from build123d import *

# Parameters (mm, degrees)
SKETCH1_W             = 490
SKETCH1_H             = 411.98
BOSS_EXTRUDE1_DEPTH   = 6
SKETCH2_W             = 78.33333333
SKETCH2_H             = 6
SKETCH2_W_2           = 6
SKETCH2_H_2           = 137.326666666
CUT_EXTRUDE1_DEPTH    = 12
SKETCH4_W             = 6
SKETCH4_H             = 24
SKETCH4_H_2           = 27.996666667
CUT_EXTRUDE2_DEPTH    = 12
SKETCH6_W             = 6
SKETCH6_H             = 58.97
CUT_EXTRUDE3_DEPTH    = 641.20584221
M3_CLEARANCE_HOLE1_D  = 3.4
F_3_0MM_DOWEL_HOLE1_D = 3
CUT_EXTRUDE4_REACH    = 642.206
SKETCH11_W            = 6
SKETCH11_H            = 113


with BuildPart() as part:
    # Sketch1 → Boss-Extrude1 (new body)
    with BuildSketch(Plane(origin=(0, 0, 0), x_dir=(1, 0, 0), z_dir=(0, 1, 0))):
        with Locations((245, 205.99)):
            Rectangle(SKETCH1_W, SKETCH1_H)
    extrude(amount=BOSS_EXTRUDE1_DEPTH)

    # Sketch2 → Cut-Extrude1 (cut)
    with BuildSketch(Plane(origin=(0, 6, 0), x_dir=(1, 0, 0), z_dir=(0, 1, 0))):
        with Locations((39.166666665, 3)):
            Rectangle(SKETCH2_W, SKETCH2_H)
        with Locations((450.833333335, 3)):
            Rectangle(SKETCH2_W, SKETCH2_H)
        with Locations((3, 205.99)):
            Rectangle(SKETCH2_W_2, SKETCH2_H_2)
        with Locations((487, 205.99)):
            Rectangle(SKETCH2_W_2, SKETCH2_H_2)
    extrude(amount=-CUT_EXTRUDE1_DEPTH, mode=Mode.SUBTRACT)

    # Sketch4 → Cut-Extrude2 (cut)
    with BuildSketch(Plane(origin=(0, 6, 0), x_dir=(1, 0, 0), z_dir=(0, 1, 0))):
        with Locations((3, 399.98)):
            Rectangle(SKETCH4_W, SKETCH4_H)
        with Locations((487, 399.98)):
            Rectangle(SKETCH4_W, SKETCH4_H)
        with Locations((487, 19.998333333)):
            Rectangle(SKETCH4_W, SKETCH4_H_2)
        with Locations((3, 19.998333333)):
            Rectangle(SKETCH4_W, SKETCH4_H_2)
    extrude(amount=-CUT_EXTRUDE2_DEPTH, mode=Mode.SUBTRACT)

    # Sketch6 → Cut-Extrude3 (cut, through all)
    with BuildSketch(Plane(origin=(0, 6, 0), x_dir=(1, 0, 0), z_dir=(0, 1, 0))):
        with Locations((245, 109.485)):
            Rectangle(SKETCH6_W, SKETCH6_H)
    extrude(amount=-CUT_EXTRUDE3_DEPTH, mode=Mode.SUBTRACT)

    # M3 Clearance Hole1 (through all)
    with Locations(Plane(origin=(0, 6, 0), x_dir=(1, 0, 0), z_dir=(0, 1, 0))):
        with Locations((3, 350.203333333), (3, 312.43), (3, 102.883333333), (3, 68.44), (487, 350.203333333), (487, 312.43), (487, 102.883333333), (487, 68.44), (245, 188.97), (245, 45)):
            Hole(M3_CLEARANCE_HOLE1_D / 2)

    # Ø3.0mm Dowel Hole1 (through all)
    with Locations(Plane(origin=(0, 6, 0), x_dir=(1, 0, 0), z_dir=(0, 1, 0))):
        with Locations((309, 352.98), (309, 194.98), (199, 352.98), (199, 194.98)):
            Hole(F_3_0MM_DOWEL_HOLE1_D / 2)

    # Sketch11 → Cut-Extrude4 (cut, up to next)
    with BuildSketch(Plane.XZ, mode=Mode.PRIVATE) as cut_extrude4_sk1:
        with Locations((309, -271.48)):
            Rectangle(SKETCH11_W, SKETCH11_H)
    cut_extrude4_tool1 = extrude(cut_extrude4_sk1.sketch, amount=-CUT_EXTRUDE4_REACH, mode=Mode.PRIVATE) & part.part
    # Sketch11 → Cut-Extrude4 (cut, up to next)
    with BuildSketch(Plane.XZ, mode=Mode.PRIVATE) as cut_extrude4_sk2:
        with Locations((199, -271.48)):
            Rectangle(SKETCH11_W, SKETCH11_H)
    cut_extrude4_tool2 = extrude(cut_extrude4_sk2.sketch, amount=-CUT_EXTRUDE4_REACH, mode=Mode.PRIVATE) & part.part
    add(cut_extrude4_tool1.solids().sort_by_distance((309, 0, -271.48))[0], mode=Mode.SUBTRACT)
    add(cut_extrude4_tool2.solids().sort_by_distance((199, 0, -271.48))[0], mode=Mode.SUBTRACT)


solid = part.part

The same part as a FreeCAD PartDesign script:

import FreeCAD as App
import Part
import Sketcher

V = App.Vector

doc = App.newDocument("Part")
body = doc.addObject("PartDesign::Body", "Body")

sketch1 = body.newObject("Sketcher::SketchObject", "Sketch")
sketch1.AttachmentSupport = (doc.getObject("XZ_Plane"), [""])
sketch1.MapMode = "FlatFace"
sketch1.addGeometry([
    Part.LineSegment(V(0, -411.98, 0), V(0, 0, 0)),
    Part.LineSegment(V(0, 0, 0), V(490, 0, 0)),
    Part.LineSegment(V(490, 0, 0), V(490, -411.98, 0)),
    Part.LineSegment(V(490, -411.98, 0), V(0, -411.98, 0)),
], False)
sketch1.addConstraint([
    Sketcher.Constraint("Coincident", 0, 2, 1, 1),
    Sketcher.Constraint("Coincident", 1, 2, 2, 1),
    Sketcher.Constraint("Coincident", 2, 2, 3, 1),
    Sketcher.Constraint("Coincident", 3, 2, 0, 1),
    Sketcher.Constraint("Vertical", 0),
    Sketcher.Constraint("Horizontal", 1),
    Sketcher.Constraint("Vertical", 2),
    Sketcher.Constraint("Horizontal", 3),
    Sketcher.Constraint("Coincident", 0, 2, -1, 1),
    Sketcher.Constraint("DistanceX", 1, 1, 1, 2, 490.0),
    Sketcher.Constraint("DistanceY", 0, 1, 0, 2, 411.98),
])
pad1 = body.newObject("PartDesign::Pad", "Pad")
pad1.Profile = sketch1
pad1.Length = 6
pad1.Reversed = True

sketch2 = body.newObject("Sketcher::SketchObject", "Sketch001")
sketch2.AttachmentSupport = (doc.getObject("XZ_Plane"), [""])
sketch2.MapMode = "FlatFace"
sketch2.AttachmentOffset = App.Placement(V(0, 0, -6), App.Rotation())
sketch2.addGeometry([
    Part.LineSegment(V(0, -6, 0), V(0, 0, 0)),
    Part.LineSegment(V(0, 0, 0), V(78.333333, 0, 0)),
    Part.LineSegment(V(78.333333, 0, 0), V(78.333333, -6, 0)),
    Part.LineSegment(V(78.333333, -6, 0), V(0, -6, 0)),
    Part.LineSegment(V(411.666667, -6, 0), V(411.666667, 0, 0)),
    Part.LineSegment(V(411.666667, 0, 0), V(490, 0, 0)),
    Part.LineSegment(V(490, 0, 0), V(490, -6, 0)),
    Part.LineSegment(V(490, -6, 0), V(411.666667, -6, 0)),
    Part.LineSegment(V(0, -274.653333, 0), V(0, -137.326667, 0)),
    Part.LineSegment(V(0, -137.326667, 0), V(6, -137.326667, 0)),
    Part.LineSegment(V(6, -137.326667, 0), V(6, -274.653333, 0)),
    Part.LineSegment(V(6, -274.653333, 0), V(0, -274.653333, 0)),
    Part.LineSegment(V(484, -274.653333, 0), V(484, -137.326667, 0)),
    Part.LineSegment(V(484, -137.326667, 0), V(490, -137.326667, 0)),
    Part.LineSegment(V(490, -137.326667, 0), V(490, -274.653333, 0)),
    Part.LineSegment(V(490, -274.653333, 0), V(484, -274.653333, 0)),
], False)
sketch2.addConstraint([
    Sketcher.Constraint("Coincident", 0, 2, 1, 1),
    Sketcher.Constraint("Coincident", 1, 2, 2, 1),
    Sketcher.Constraint("Coincident", 2, 2, 3, 1),
    Sketcher.Constraint("Coincident", 3, 2, 0, 1),
    Sketcher.Constraint("Coincident", 4, 2, 5, 1),
    Sketcher.Constraint("Coincident", 5, 2, 6, 1),
    Sketcher.Constraint("Coincident", 6, 2, 7, 1),
    Sketcher.Constraint("Coincident", 7, 2, 4, 1),
    Sketcher.Constraint("Coincident", 8, 2, 9, 1),
    Sketcher.Constraint("Coincident", 9, 2, 10, 1),
    Sketcher.Constraint("Coincident", 10, 2, 11, 1),
    Sketcher.Constraint("Coincident", 11, 2, 8, 1),
    Sketcher.Constraint("Coincident", 12, 2, 13, 1),
    Sketcher.Constraint("Coincident", 13, 2, 14, 1),
    Sketcher.Constraint("Coincident", 14, 2, 15, 1),
    Sketcher.Constraint("Coincident", 15, 2, 12, 1),
    Sketcher.Constraint("Vertical", 0),
    Sketcher.Constraint("Horizontal", 1),
    Sketcher.Constraint("Vertical", 2),
    Sketcher.Constraint("Horizontal", 3),
    Sketcher.Constraint("Vertical", 4),
    Sketcher.Constraint("Horizontal", 5),
    Sketcher.Constraint("Vertical", 6),
    Sketcher.Constraint("Horizontal", 7),
    Sketcher.Constraint("Vertical", 8),
    Sketcher.Constraint("Horizontal", 9),
    Sketcher.Constraint("Vertical", 10),
    Sketcher.Constraint("Horizontal", 11),
    Sketcher.Constraint("Vertical", 12),
    Sketcher.Constraint("Horizontal", 13),
    Sketcher.Constraint("Vertical", 14),
    Sketcher.Constraint("Horizontal", 15),
    Sketcher.Constraint("Coincident", 0, 2, -1, 1),
    Sketcher.Constraint("PointOnObject", 4, 2, -1),
    Sketcher.Constraint("PointOnObject", 8, 2, -2),
    Sketcher.Constraint("Horizontal", 3, 2, 6, 2),
    Sketcher.Constraint("Horizontal", 9, 2, 12, 2),
    Sketcher.Constraint("Horizontal", 11, 2, 14, 2),
    Sketcher.Constraint("Vertical", 6, 2, 13, 2),
    Sketcher.Constraint("Equal", 3, 5),
    Sketcher.Constraint("Equal", 11, 13),
    Sketcher.Constraint("Equal", 15, 0),
    Sketcher.Constraint("DistanceX", 9, 1, 9, 2, 6.0),
    Sketcher.Constraint("DistanceX", -1, 1, 5, 2, 490.0),
    Sketcher.Constraint("DistanceX", 1, 1, 1, 2, 78.333333),
    Sketcher.Constraint("DistanceY", 8, 1, 8, 2, 137.326667),
    Sketcher.Constraint("DistanceY", 8, 2, -1, 1, 137.326667),
])
pocket1 = body.newObject("PartDesign::Pocket", "Pocket")
pocket1.Profile = sketch2
pocket1.Length = 12
pocket1.Reversed = True

sketch3 = body.newObject("Sketcher::SketchObject", "Sketch002")
sketch3.AttachmentSupport = (doc.getObject("XZ_Plane"), [""])
sketch3.MapMode = "FlatFace"
sketch3.AttachmentOffset = App.Placement(V(0, 0, -6), App.Rotation())
sketch3.addGeometry([
    Part.LineSegment(V(0, -411.98, 0), V(0, -387.98, 0)),
    Part.LineSegment(V(0, -387.98, 0), V(6, -387.98, 0)),
    Part.LineSegment(V(6, -387.98, 0), V(6, -411.98, 0)),
    Part.LineSegment(V(6, -411.98, 0), V(0, -411.98, 0)),
    Part.LineSegment(V(484, -411.98, 0), V(484, -387.98, 0)),
    Part.LineSegment(V(484, -387.98, 0), V(490, -387.98, 0)),
    Part.LineSegment(V(490, -387.98, 0), V(490, -411.98, 0)),
    Part.LineSegment(V(490, -411.98, 0), V(484, -411.98, 0)),
    Part.LineSegment(V(484, -33.996667, 0), V(484, -6, 0)),
    Part.LineSegment(V(484, -6, 0), V(490, -6, 0)),
    Part.LineSegment(V(490, -6, 0), V(490, -33.996667, 0)),
    Part.LineSegment(V(490, -33.996667, 0), V(484, -33.996667, 0)),
    Part.LineSegment(V(0, -33.996667, 0), V(0, -6, 0)),
    Part.LineSegment(V(0, -6, 0), V(6, -6, 0)),
    Part.LineSegment(V(6, -6, 0), V(6, -33.996667, 0)),
    Part.LineSegment(V(6, -33.996667, 0), V(0, -33.996667, 0)),
], False)
sketch3.addConstraint([
    Sketcher.Constraint("Coincident", 0, 2, 1, 1),
    Sketcher.Constraint("Coincident", 1, 2, 2, 1),
    Sketcher.Constraint("Coincident", 2, 2, 3, 1),
    Sketcher.Constraint("Coincident", 3, 2, 0, 1),
    Sketcher.Constraint("Coincident", 4, 2, 5, 1),
    Sketcher.Constraint("Coincident", 5, 2, 6, 1),
    Sketcher.Constraint("Coincident", 6, 2, 7, 1),
    Sketcher.Constraint("Coincident", 7, 2, 4, 1),
    Sketcher.Constraint("Coincident", 8, 2, 9, 1),
    Sketcher.Constraint("Coincident", 9, 2, 10, 1),
    Sketcher.Constraint("Coincident", 10, 2, 11, 1),
    Sketcher.Constraint("Coincident", 11, 2, 8, 1),
    Sketcher.Constraint("Coincident", 12, 2, 13, 1),
    Sketcher.Constraint("Coincident", 13, 2, 14, 1),
    Sketcher.Constraint("Coincident", 14, 2, 15, 1),
    Sketcher.Constraint("Coincident", 15, 2, 12, 1),
    Sketcher.Constraint("Vertical", 0),
    Sketcher.Constraint("Horizontal", 1),
    Sketcher.Constraint("Vertical", 2),
    Sketcher.Constraint("Horizontal", 3),
    Sketcher.Constraint("Vertical", 4),
    Sketcher.Constraint("Horizontal", 5),
    Sketcher.Constraint("Vertical", 6),
    Sketcher.Constraint("Horizontal", 7),
    Sketcher.Constraint("Vertical", 8),
    Sketcher.Constraint("Horizontal", 9),
    Sketcher.Constraint("Vertical", 10),
    Sketcher.Constraint("Horizontal", 11),
    Sketcher.Constraint("Vertical", 12),
    Sketcher.Constraint("Horizontal", 13),
    Sketcher.Constraint("Vertical", 14),
    Sketcher.Constraint("Horizontal", 15),
    Sketcher.Constraint("PointOnObject", 0, 2, -2),
    Sketcher.Constraint("PointOnObject", 12, 2, -2),
    Sketcher.Constraint("Horizontal", 1, 2, 4, 2),
    Sketcher.Constraint("Horizontal", 3, 2, 6, 2),
    Sketcher.Constraint("Horizontal", 9, 2, 12, 2),
    Sketcher.Constraint("Horizontal", 11, 2, 14, 2),
    Sketcher.Constraint("Vertical", 7, 2, 8, 2),
    Sketcher.Constraint("Vertical", 6, 2, 9, 2),
    Sketcher.Constraint("Vertical", 2, 2, 13, 2),
    Sketcher.Constraint("Equal", 3, 5),
    Sketcher.Constraint("DistanceX", 1, 1, 1, 2, 6.0),
    Sketcher.Constraint("DistanceY", 0, 1, 0, 2, 24.0),
    Sketcher.Constraint("DistanceX", -1, 1, 4, 2, 484.0),
    Sketcher.Constraint("DistanceY", 8, 2, -1, 1, 6.0),
    Sketcher.Constraint("DistanceY", 0, 2, -1, 1, 387.98),
    Sketcher.Constraint("DistanceY", 8, 1, 8, 2, 27.996667),
])
pocket2 = body.newObject("PartDesign::Pocket", "Pocket001")
pocket2.Profile = sketch3
pocket2.Length = 12
pocket2.Reversed = True

sketch4 = body.newObject("Sketcher::SketchObject", "Sketch003")
sketch4.AttachmentSupport = (doc.getObject("XZ_Plane"), [""])
sketch4.MapMode = "FlatFace"
sketch4.AttachmentOffset = App.Placement(V(0, 0, -6), App.Rotation())
sketch4.addGeometry([
    Part.LineSegment(V(242, -138.97, 0), V(242, -80, 0)),
    Part.LineSegment(V(242, -80, 0), V(248, -80, 0)),
    Part.LineSegment(V(248, -80, 0), V(248, -138.97, 0)),
    Part.LineSegment(V(248, -138.97, 0), V(242, -138.97, 0)),
], False)
sketch4.addConstraint([
    Sketcher.Constraint("Coincident", 0, 2, 1, 1),
    Sketcher.Constraint("Coincident", 1, 2, 2, 1),
    Sketcher.Constraint("Coincident", 2, 2, 3, 1),
    Sketcher.Constraint("Coincident", 3, 2, 0, 1),
    Sketcher.Constraint("Vertical", 0),
    Sketcher.Constraint("Horizontal", 1),
    Sketcher.Constraint("Vertical", 2),
    Sketcher.Constraint("Horizontal", 3),
    Sketcher.Constraint("DistanceX", 1, 1, 1, 2, 6.0),
    Sketcher.Constraint("DistanceX", -1, 1, 0, 2, 242.0),
    Sketcher.Constraint("DistanceY", 0, 2, -1, 1, 80.0),
    Sketcher.Constraint("DistanceY", 0, 1, 0, 2, 58.97),
])
pocket3 = body.newObject("PartDesign::Pocket", "Pocket002")
pocket3.Profile = sketch4
pocket3.Type = "ThroughAll"
pocket3.Reversed = True

sketch5 = body.newObject("Sketcher::SketchObject", "Sketch004")
sketch5.AttachmentSupport = (doc.getObject("XZ_Plane"), [""])
sketch5.MapMode = "FlatFace"
sketch5.AttachmentOffset = App.Placement(V(0, 0, -6), App.Rotation())
sketch5.addGeometry([
    Part.Circle(V(3, -350.203333, 0), V(0, 0, 1), 1.7),
    Part.Circle(V(3, -312.43, 0), V(0, 0, 1), 1.7),
    Part.Circle(V(3, -102.883333, 0), V(0, 0, 1), 1.7),
    Part.Circle(V(3, -68.44, 0), V(0, 0, 1), 1.7),
    Part.Circle(V(487, -350.203333, 0), V(0, 0, 1), 1.7),
    Part.Circle(V(487, -312.43, 0), V(0, 0, 1), 1.7),
    Part.Circle(V(487, -102.883333, 0), V(0, 0, 1), 1.7),
    Part.Circle(V(487, -68.44, 0), V(0, 0, 1), 1.7),
    Part.Circle(V(245, -188.97, 0), V(0, 0, 1), 1.7),
    Part.Circle(V(245, -45, 0), V(0, 0, 1), 1.7),
], False)
sketch5.addConstraint([
    Sketcher.Constraint("Equal", 0, 1),
    Sketcher.Constraint("Equal", 1, 2),
    Sketcher.Constraint("Equal", 2, 3),
    Sketcher.Constraint("Equal", 3, 4),
    Sketcher.Constraint("Equal", 4, 5),
    Sketcher.Constraint("Equal", 5, 6),
    Sketcher.Constraint("Equal", 6, 7),
    Sketcher.Constraint("Equal", 7, 8),
    Sketcher.Constraint("Equal", 8, 9),
    Sketcher.Constraint("Horizontal", 0, 3, 4, 3),
    Sketcher.Constraint("Horizontal", 1, 3, 5, 3),
    Sketcher.Constraint("Horizontal", 2, 3, 6, 3),
    Sketcher.Constraint("Horizontal", 3, 3, 7, 3),
    Sketcher.Constraint("Vertical", 0, 3, 1, 3),
    Sketcher.Constraint("Vertical", 1, 3, 2, 3),
    Sketcher.Constraint("Vertical", 2, 3, 3, 3),
    Sketcher.Constraint("Vertical", 4, 3, 5, 3),
    Sketcher.Constraint("Vertical", 5, 3, 6, 3),
    Sketcher.Constraint("Vertical", 6, 3, 7, 3),
    Sketcher.Constraint("Vertical", 8, 3, 9, 3),
    Sketcher.Constraint("Diameter", 0, 3.4),
    Sketcher.Constraint("DistanceX", -1, 1, 0, 3, 3.0),
    Sketcher.Constraint("DistanceX", -1, 1, 4, 3, 487.0),
    Sketcher.Constraint("DistanceX", -1, 1, 8, 3, 245.0),
    Sketcher.Constraint("DistanceY", 9, 3, -1, 1, 45.0),
    Sketcher.Constraint("DistanceY", 1, 3, -1, 1, 312.43),
    Sketcher.Constraint("DistanceY", 3, 3, -1, 1, 68.44),
    Sketcher.Constraint("DistanceY", 8, 3, -1, 1, 188.97),
    Sketcher.Constraint("DistanceY", 0, 3, 2, 3, 247.32),
    Sketcher.Constraint("DistanceY", 0, 3, -1, 1, 350.203333),
])
doc.recompute()
hole = body.newObject("PartDesign::Hole", "Hole")
hole.Profile = sketch5
hole.ThreadType = "None"
hole.Diameter = 3.4
hole.DepthType = "ThroughAll"
hole.Reversed = True

sketch6 = body.newObject("Sketcher::SketchObject", "Sketch005")
sketch6.AttachmentSupport = (doc.getObject("XZ_Plane"), [""])
sketch6.MapMode = "FlatFace"
sketch6.AttachmentOffset = App.Placement(V(0, 0, -6), App.Rotation())
sketch6.addGeometry([
    Part.Circle(V(309, -352.98, 0), V(0, 0, 1), 1.5),
    Part.Circle(V(309, -194.98, 0), V(0, 0, 1), 1.5),
    Part.Circle(V(199, -352.98, 0), V(0, 0, 1), 1.5),
    Part.Circle(V(199, -194.98, 0), V(0, 0, 1), 1.5),
], False)
sketch6.addConstraint([
    Sketcher.Constraint("Equal", 0, 1),
    Sketcher.Constraint("Equal", 1, 2),
    Sketcher.Constraint("Equal", 2, 3),
    Sketcher.Constraint("Horizontal", 0, 3, 2, 3),
    Sketcher.Constraint("Horizontal", 1, 3, 3, 3),
    Sketcher.Constraint("Vertical", 0, 3, 1, 3),
    Sketcher.Constraint("Vertical", 2, 3, 3, 3),
    Sketcher.Constraint("Diameter", 0, 3.0),
    Sketcher.Constraint("DistanceX", -1, 1, 0, 3, 309.0),
    Sketcher.Constraint("DistanceX", -1, 1, 2, 3, 199.0),
    Sketcher.Constraint("DistanceY", 0, 3, 1, 3, 158.0),
    Sketcher.Constraint("DistanceY", 0, 3, -1, 1, 352.98),
])
doc.recompute()
hole2 = body.newObject("PartDesign::Hole", "Hole001")
hole2.Profile = sketch6
hole2.ThreadType = "None"
hole2.Diameter = 3
hole2.DepthType = "ThroughAll"
hole2.Reversed = True

sketch7 = body.newObject("Sketcher::SketchObject", "Sketch006")
sketch7.AttachmentSupport = (doc.getObject("XZ_Plane"), [""])
sketch7.MapMode = "FlatFace"
sketch7.addGeometry([
    Part.LineSegment(V(306, -214.98, 0), V(306, -327.98, 0)),
    Part.LineSegment(V(306, -327.98, 0), V(312, -327.98, 0)),
    Part.LineSegment(V(312, -327.98, 0), V(312, -214.98, 0)),
    Part.LineSegment(V(312, -214.98, 0), V(306, -214.98, 0)),
], False)
sketch7.addConstraint([
    Sketcher.Constraint("Coincident", 0, 2, 1, 1),
    Sketcher.Constraint("Coincident", 1, 2, 2, 1),
    Sketcher.Constraint("Coincident", 2, 2, 3, 1),
    Sketcher.Constraint("Coincident", 3, 2, 0, 1),
    Sketcher.Constraint("Vertical", 0),
    Sketcher.Constraint("Horizontal", 1),
    Sketcher.Constraint("Vertical", 2),
    Sketcher.Constraint("Horizontal", 3),
    Sketcher.Constraint("DistanceX", 1, 1, 1, 2, 6.0),
    Sketcher.Constraint("DistanceY", 0, 2, 0, 1, 113.0),
    Sketcher.Constraint("DistanceX", -1, 1, 0, 2, 306.0),
    Sketcher.Constraint("DistanceY", 0, 2, -1, 1, 327.98),
])
pocket4 = body.newObject("PartDesign::Pocket", "Pocket003")
pocket4.Profile = sketch7
pocket4.Type = "UpToFirst"

sketch8 = body.newObject("Sketcher::SketchObject", "Sketch007")
sketch8.AttachmentSupport = (doc.getObject("XZ_Plane"), [""])
sketch8.MapMode = "FlatFace"
sketch8.addGeometry([
    Part.LineSegment(V(196, -214.98, 0), V(196, -327.98, 0)),
    Part.LineSegment(V(196, -327.98, 0), V(202, -327.98, 0)),
    Part.LineSegment(V(202, -327.98, 0), V(202, -214.98, 0)),
    Part.LineSegment(V(202, -214.98, 0), V(196, -214.98, 0)),
], False)
sketch8.addConstraint([
    Sketcher.Constraint("Coincident", 0, 2, 1, 1),
    Sketcher.Constraint("Coincident", 1, 2, 2, 1),
    Sketcher.Constraint("Coincident", 2, 2, 3, 1),
    Sketcher.Constraint("Coincident", 3, 2, 0, 1),
    Sketcher.Constraint("Vertical", 0),
    Sketcher.Constraint("Horizontal", 1),
    Sketcher.Constraint("Vertical", 2),
    Sketcher.Constraint("Horizontal", 3),
    Sketcher.Constraint("DistanceX", 1, 1, 1, 2, 6.0),
    Sketcher.Constraint("DistanceY", 0, 2, 0, 1, 113.0),
    Sketcher.Constraint("DistanceX", -1, 1, 0, 2, 196.0),
    Sketcher.Constraint("DistanceY", 0, 2, -1, 1, 327.98),
])
pocket5 = body.newObject("PartDesign::Pocket", "Pocket004")
pocket5.Profile = sketch8
pocket5.Type = "UpToFirst"

doc.recompute()
